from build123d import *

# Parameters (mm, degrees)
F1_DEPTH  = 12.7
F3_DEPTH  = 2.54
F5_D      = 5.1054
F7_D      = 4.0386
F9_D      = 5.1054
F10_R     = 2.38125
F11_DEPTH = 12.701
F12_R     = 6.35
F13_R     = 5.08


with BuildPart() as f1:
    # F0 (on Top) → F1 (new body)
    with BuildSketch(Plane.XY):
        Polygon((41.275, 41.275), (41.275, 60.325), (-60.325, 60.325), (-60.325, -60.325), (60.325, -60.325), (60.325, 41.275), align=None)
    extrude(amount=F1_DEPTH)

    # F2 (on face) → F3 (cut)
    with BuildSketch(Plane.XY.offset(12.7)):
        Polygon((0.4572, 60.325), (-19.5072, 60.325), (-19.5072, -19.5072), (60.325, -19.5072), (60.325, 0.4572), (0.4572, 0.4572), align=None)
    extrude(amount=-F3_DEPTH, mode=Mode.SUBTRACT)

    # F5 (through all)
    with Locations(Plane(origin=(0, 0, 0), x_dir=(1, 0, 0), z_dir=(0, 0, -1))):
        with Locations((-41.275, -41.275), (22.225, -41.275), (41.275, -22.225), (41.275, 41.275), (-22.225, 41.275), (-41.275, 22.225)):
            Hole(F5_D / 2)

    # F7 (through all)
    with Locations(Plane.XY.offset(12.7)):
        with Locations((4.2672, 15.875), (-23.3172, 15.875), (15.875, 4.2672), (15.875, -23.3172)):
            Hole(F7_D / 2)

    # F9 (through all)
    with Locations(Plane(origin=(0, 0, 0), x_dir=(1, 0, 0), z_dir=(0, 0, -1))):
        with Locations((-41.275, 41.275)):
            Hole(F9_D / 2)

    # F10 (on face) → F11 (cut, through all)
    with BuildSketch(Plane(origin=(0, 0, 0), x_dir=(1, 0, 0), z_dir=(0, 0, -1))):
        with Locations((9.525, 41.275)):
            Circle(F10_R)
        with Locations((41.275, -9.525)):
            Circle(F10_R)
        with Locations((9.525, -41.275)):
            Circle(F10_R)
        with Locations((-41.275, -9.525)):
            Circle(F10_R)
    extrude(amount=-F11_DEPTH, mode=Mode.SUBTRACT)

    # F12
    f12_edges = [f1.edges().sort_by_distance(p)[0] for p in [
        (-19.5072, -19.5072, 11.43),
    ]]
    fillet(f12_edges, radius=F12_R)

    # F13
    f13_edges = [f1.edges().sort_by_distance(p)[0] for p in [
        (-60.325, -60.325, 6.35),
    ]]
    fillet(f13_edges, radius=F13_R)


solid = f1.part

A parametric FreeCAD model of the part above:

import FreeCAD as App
import Part
import Sketcher
Q = App.Units.Quantity


def edges_at(feature, points):
    """Names of the edges that pass closest to the given points."""
    edges = feature.Shape.Edges
    near = lambda p: min(range(len(edges)), key=lambda i: edges[i].distToShape(Part.Vertex(*p))[0])
    return sorted({f"Edge{near(p) + 1}" for p in points})


def add_polygon(sketch, points):
    """Adds a closed chain of lines whose ends are joined by coincident constraints."""
    first, n = sketch.GeometryCount, len(points)
    for a, b in zip(points, points[1:] + points[:1]):
        sketch.addGeometry(Part.LineSegment(App.Vector(*a, 0), App.Vector(*b, 0)), False)
    for i in range(n):
        sketch.addConstraint(Sketcher.Constraint("Coincident", first + i, 2, first + (i + 1) % n, 1))

doc = App.newDocument("Part")
params = doc.addObject("Spreadsheet::Sheet", "Params")
for row, (alias, value) in enumerate([
    ("sketch1_width", "4 in"),
    ("sketch1_width2", "4.75 in"),
    ("pad1_length", "0.5 in"),
    ("sketch2_width", "0.786 in"),
    ("sketch2_width2", "3.143 in"),
    ("pocket1_length", "0.1 in"),
    ("sketch3_diameter", "0.201 in"),
    ("hole_diameter", "0.201 in"),
    ("sketch4_diameter", "0.159 in"),
    ("hole2_diameter", "0.159 in"),
    ("sketch5_diameter", "0.201 in"),
    ("hole3_diameter", "0.201 in"),
    ("sketch6_diameter", "0.1875 in"),
    ("fillet_radius", "0.25 in"),
    ("fillet2_radius", "0.2 in"),
], start=1):
    params.set(f"A{row}", alias)
    params.set(f"B{row}", "=" + value)
    params.setAlias(f"B{row}", alias)

body = doc.addObject("PartDesign::Body", "Body")

sketch1 = body.newObject("Sketcher::SketchObject", "Sketch")
sketch1.AttachmentSupport = (doc.getObject("XY_Plane"), [""])
sketch1.MapMode = "FlatFace"
add_polygon(sketch1, [(41, 41), (41, 60), (-60, 60), (-60, -60), (60, -60), (60, 41)])
sketch1.addConstraint(Sketcher.Constraint("Vertical", 0))
sketch1.addConstraint(Sketcher.Constraint("Horizontal", 1))
sketch1.addConstraint(Sketcher.Constraint("Vertical", 2))
sketch1.addConstraint(Sketcher.Constraint("Horizontal", 3))
sketch1.addConstraint(Sketcher.Constraint("Vertical", 4))
sketch1.addConstraint(Sketcher.Constraint("Horizontal", 5))
sketch1.addConstraint(Sketcher.Constraint("Symmetric", 1, 2, 3, 2, -1, 1))
sketch1.addConstraint(Sketcher.Constraint("Equal", 5, 0))
sketch1.addConstraint(Sketcher.Constraint("Equal", 3, 2))
sketch1.addConstraint(Sketcher.Constraint("DistanceX", 1, 2, 1, 1, Q("4 in")))
sketch1.addConstraint(Sketcher.Constraint("DistanceX", 3, 1, 3, 2, Q("4.75 in")))
sketch1.setExpression("Constraints[15]", "Params.sketch1_width")
sketch1.setExpression("Constraints[16]", "Params.sketch1_width2")
pad1 = body.newObject("PartDesign::Pad", "Pad")
pad1.Profile = sketch1
pad1.setExpression("Length", "Params.pad1_length")

sketch2 = body.newObject("Sketcher::SketchObject", "Sketch001")
sketch2.AttachmentSupport = (doc.getObject("XY_Plane"), [""])
sketch2.MapMode = "FlatFace"
sketch2.AttachmentOffset = App.Placement(App.Vector(0, 0, 0.5 * 25.4), App.Rotation())
add_polygon(sketch2, [(0, 60), (-20, 60), (-20, -20), (60, -20), (60, 0), (0, 0)])
sketch2.addConstraint(Sketcher.Constraint("Horizontal", 0))
sketch2.addConstraint(Sketcher.Constraint("Vertical", 1))
sketch2.addConstraint(Sketcher.Constraint("Horizontal", 2))
sketch2.addConstraint(Sketcher.Constraint("Vertical", 3))
sketch2.addConstraint(Sketcher.Constraint("Horizontal", 4))
sketch2.addConstraint(Sketcher.Constraint("Vertical", 5))
sketch2.addConstraint(Sketcher.Constraint("Equal", 2, 1))
sketch2.addConstraint(Sketcher.Constraint("Equal", 0, 3))
sketch2.addConstraint(Sketcher.Constraint("DistanceX", 0, 2, 0, 1, Q("0.786 in")))
sketch2.addConstraint(Sketcher.Constraint("DistanceX", 2, 1, 2, 2, Q("3.143 in")))
sketch2.addConstraint(Sketcher.Constraint("DistanceX", 0, 2, -1, 1, Q("0.768 in")))
sketch2.addConstraint(Sketcher.Constraint("DistanceY", -1, 1, 0, 2, Q("2.375 in")))
sketch2.setExpression("Constraints[14]", "Params.sketch2_width")
sketch2.setExpression("Constraints[15]", "Params.sketch2_width2")
pocket1 = body.newObject("PartDesign::Pocket", "Pocket")
pocket1.Profile = sketch2
pocket1.setExpression("Length", "Params.pocket1_length")

sketch3 = body.newObject("Sketcher::SketchObject", "Sketch002")
sketch3.AttachmentSupport = (doc.getObject("XY_Plane"), [""])
sketch3.MapMode = "FlatFace"
sketch3.addGeometry(Part.Circle(App.Vector(-41.3, 41.3, 0), App.Vector(0, 0, 1), 2.6), False)
sketch3.addGeometry(Part.Circle(App.Vector(22.2, 41.3, 0), App.Vector(0, 0, 1), 2.6), False)
sketch3.addGeometry(Part.Circle(App.Vector(41.3, 22.2, 0), App.Vector(0, 0, 1), 2.6), False)
sketch3.addGeometry(Part.Circle(App.Vector(41.3, -41.3, 0), App.Vector(0, 0, 1), 2.6), False)
sketch3.addGeometry(Part.Circle(App.Vector(-22.2, -41.3, 0), App.Vector(0, 0, 1), 2.6), False)
sketch3.addGeometry(Part.Circle(App.Vector(-41.3, -22.2, 0), App.Vector(0, 0, 1), 2.6), False)
sketch3.addConstraint(Sketcher.Constraint("Equal", 0, 1))
sketch3.addConstraint(Sketcher.Constraint("Equal", 1, 2))
sketch3.addConstraint(Sketcher.Constraint("Equal", 2, 3))
sketch3.addConstraint(Sketcher.Constraint("Equal", 3, 4))
sketch3.addConstraint(Sketcher.Constraint("Equal", 4, 5))
sketch3.addConstraint(Sketcher.Constraint("Symmetric", 0, 3, 3, 3, -1, 1))
sketch3.addConstraint(Sketcher.Constraint("Symmetric", 1, 3, 4, 3, -1, 1))
sketch3.addConstraint(Sketcher.Constraint("Symmetric", 2, 3, 5, 3, -1, 1))
sketch3.addConstraint(Sketcher.Constraint("Horizontal", 0, 3, 1, 3))
sketch3.addConstraint(Sketcher.Constraint("Vertical", 2, 3, 3, 3))
sketch3.addConstraint(Sketcher.Constraint("Diameter", 0, Q("0.201 in")))
sketch3.addConstraint(Sketcher.Constraint("DistanceX", 0, 3, 1, 3, Q("2.5 in")))
sketch3.addConstraint(Sketcher.Constraint("DistanceY", 3, 3, 2, 3, Q("2.5 in")))
sketch3.addConstraint(Sketcher.Constraint("DistanceX", 1, 3, 2, 3, Q("0.75 in")))
sketch3.addConstraint(Sketcher.Constraint("DistanceY", 2, 3, 1, 3, Q("0.75 in")))
sketch3.setExpression("Constraints[10]", "Params.sketch3_diameter")
doc.recompute()
hole = body.newObject("PartDesign::Hole", "Hole")
hole.Profile = sketch3
hole.ThreadType = "None"
hole.setExpression("Diameter", "Params.hole_diameter")
hole.DepthType = "ThroughAll"
hole.Reversed = True

sketch4 = body.newObject("Sketcher::SketchObject", "Sketch003")
sketch4.AttachmentSupport = (doc.getObject("XY_Plane"), [""])
sketch4.MapMode = "FlatFace"
sketch4.AttachmentOffset = App.Placement(App.Vector(0, 0, 0.5 * 25.4), App.Rotation())
sketch4.addGeometry(Part.Circle(App.Vector(4.3, 15.9, 0), App.Vector(0, 0, 1), 2), False)
sketch4.addGeometry(Part.Circle(App.Vector(-23.3, 15.9, 0), App.Vector(0, 0, 1), 2), False)
sketch4.addGeometry(Part.Circle(App.Vector(15.9, 4.3, 0), App.Vector(0, 0, 1), 2), False)
sketch4.addGeometry(Part.Circle(App.Vector(15.9, -23.3, 0), App.Vector(0, 0, 1), 2), False)
sketch4.addConstraint(Sketcher.Constraint("Equal", 0, 1))
sketch4.addConstraint(Sketcher.Constraint("Equal", 1, 2))
sketch4.addConstraint(Sketcher.Constraint("Equal", 2, 3))
sketch4.addConstraint(Sketcher.Constraint("Horizontal", 0, 3, 1, 3))
sketch4.addConstraint(Sketcher.Constraint("Vertical", 2, 3, 3, 3))
sketch4.addConstraint(Sketcher.Constraint("Diameter", 0, Q("0.159 in")))
sketch4.addConstraint(Sketcher.Constraint("DistanceX", -1, 1, 0, 3, Q("0.168 in")))
sketch4.addConstraint(Sketcher.Constraint("DistanceY", -1, 1, 0, 3, Q("0.625 in")))
sketch4.addConstraint(Sketcher.Constraint("DistanceX", 1, 3, -1, 1, Q("0.918 in")))
sketch4.addConstraint(Sketcher.Constraint("DistanceX", -1, 1, 2, 3, Q("0.625 in")))
sketch4.addConstraint(Sketcher.Constraint("DistanceY", -1, 1, 2, 3, Q("0.168 in")))
sketch4.addConstraint(Sketcher.Constraint("DistanceY", 3, 3, -1, 1, Q("0.918 in")))
sketch4.setExpression("Constraints[5]", "Params.sketch4_diameter")
doc.recompute()
hole2 = body.newObject("PartDesign::Hole", "Hole001")
hole2.Profile = sketch4
hole2.ThreadType = "None"
hole2.setExpression("Diameter", "Params.hole2_diameter")
hole2.DepthType = "ThroughAll"

sketch5 = body.newObject("Sketcher::SketchObject", "Sketch004")
sketch5.AttachmentSupport = (doc.getObject("XY_Plane"), [""])
sketch5.MapMode = "FlatFace"
sketch5.addGeometry(Part.Circle(App.Vector(-41.3, -41.3, 0), App.Vector(0, 0, 1), 2.6), False)
sketch5.addConstraint(Sketcher.Constraint("Diameter", 0, Q("0.201 in")))
sketch5.addConstraint(Sketcher.Constraint("DistanceX", 0, 3, -1, 1, Q("1.625 in")))
sketch5.addConstraint(Sketcher.Constraint("DistanceY", 0, 3, -1, 1, Q("1.625 in")))
sketch5.setExpression("Constraints[0]", "Params.sketch5_diameter")
doc.recompute()
hole3 = body.newObject("PartDesign::Hole", "Hole002")
hole3.Profile = sketch5
hole3.ThreadType = "None"
hole3.setExpression("Diameter", "Params.hole3_diameter")
hole3.DepthType = "ThroughAll"
hole3.Reversed = True

sketch6 = body.newObject("Sketcher::SketchObject", "Sketch005")
sketch6.AttachmentSupport = (doc.getObject("XY_Plane"), [""])
sketch6.MapMode = "FlatFace"
sketch6.addGeometry(Part.Circle(App.Vector(9.5, -41.3, 0), App.Vector(0, 0, 1), 2.4), False)
sketch6.addGeometry(Part.Circle(App.Vector(41.3, 9.5, 0), App.Vector(0, 0, 1), 2.4), False)
sketch6.addGeometry(Part.Circle(App.Vector(9.5, 41.3, 0), App.Vector(0, 0, 1), 2.4), False)
sketch6.addGeometry(Part.Circle(App.Vector(-41.3, 9.5, 0), App.Vector(0, 0, 1), 2.4), False)
sketch6.addConstraint(Sketcher.Constraint("Equal", 0, 1))
sketch6.addConstraint(Sketcher.Constraint("Equal", 1, 2))
sketch6.addConstraint(Sketcher.Constraint("Equal", 2, 3))
sketch6.addConstraint(Sketcher.Constraint("Symmetric", 1, 3, 3, 3, -2))
sketch6.addConstraint(Sketcher.Constraint("Symmetric", 0, 3, 2, 3, -1))
sketch6.addConstraint(Sketcher.Constraint("Diameter", 0, Q("0.1875 in")))
sketch6.addConstraint(Sketcher.Constraint("DistanceY", 0, 3, 1, 3, Q("2 in")))
sketch6.addConstraint(Sketcher.Constraint("DistanceX", 3, 3, 2, 3, Q("2 in")))
sketch6.addConstraint(Sketcher.Constraint("DistanceX", 0, 3, 1, 3, Q("1.25 in")))
sketch6.addConstraint(Sketcher.Constraint("DistanceY", 1, 3, 2, 3, Q("1.25 in")))
sketch6.setExpression("Constraints[5]", "Params.sketch6_diameter")
pocket2 = body.newObject("PartDesign::Pocket", "Pocket001")
pocket2.Profile = sketch6
pocket2.Type = "ThroughAll"
pocket2.Reversed = True
doc.recompute()

fillet = body.newObject("PartDesign::Fillet", "Fillet")
fillet.Base = (pocket2, edges_at(pocket2, [(-19.507, -19.507, 11.43)]))
fillet.setExpression("Radius", "Params.fillet_radius")
doc.recompute()

fillet2 = body.newObject("PartDesign::Fillet", "Fillet001")
fillet2.Base = (fillet, edges_at(fillet, [(-60.325, -60.325, 6.35)]))
fillet2.setExpression("Radius", "Params.fillet2_radius")

doc.recompute()
